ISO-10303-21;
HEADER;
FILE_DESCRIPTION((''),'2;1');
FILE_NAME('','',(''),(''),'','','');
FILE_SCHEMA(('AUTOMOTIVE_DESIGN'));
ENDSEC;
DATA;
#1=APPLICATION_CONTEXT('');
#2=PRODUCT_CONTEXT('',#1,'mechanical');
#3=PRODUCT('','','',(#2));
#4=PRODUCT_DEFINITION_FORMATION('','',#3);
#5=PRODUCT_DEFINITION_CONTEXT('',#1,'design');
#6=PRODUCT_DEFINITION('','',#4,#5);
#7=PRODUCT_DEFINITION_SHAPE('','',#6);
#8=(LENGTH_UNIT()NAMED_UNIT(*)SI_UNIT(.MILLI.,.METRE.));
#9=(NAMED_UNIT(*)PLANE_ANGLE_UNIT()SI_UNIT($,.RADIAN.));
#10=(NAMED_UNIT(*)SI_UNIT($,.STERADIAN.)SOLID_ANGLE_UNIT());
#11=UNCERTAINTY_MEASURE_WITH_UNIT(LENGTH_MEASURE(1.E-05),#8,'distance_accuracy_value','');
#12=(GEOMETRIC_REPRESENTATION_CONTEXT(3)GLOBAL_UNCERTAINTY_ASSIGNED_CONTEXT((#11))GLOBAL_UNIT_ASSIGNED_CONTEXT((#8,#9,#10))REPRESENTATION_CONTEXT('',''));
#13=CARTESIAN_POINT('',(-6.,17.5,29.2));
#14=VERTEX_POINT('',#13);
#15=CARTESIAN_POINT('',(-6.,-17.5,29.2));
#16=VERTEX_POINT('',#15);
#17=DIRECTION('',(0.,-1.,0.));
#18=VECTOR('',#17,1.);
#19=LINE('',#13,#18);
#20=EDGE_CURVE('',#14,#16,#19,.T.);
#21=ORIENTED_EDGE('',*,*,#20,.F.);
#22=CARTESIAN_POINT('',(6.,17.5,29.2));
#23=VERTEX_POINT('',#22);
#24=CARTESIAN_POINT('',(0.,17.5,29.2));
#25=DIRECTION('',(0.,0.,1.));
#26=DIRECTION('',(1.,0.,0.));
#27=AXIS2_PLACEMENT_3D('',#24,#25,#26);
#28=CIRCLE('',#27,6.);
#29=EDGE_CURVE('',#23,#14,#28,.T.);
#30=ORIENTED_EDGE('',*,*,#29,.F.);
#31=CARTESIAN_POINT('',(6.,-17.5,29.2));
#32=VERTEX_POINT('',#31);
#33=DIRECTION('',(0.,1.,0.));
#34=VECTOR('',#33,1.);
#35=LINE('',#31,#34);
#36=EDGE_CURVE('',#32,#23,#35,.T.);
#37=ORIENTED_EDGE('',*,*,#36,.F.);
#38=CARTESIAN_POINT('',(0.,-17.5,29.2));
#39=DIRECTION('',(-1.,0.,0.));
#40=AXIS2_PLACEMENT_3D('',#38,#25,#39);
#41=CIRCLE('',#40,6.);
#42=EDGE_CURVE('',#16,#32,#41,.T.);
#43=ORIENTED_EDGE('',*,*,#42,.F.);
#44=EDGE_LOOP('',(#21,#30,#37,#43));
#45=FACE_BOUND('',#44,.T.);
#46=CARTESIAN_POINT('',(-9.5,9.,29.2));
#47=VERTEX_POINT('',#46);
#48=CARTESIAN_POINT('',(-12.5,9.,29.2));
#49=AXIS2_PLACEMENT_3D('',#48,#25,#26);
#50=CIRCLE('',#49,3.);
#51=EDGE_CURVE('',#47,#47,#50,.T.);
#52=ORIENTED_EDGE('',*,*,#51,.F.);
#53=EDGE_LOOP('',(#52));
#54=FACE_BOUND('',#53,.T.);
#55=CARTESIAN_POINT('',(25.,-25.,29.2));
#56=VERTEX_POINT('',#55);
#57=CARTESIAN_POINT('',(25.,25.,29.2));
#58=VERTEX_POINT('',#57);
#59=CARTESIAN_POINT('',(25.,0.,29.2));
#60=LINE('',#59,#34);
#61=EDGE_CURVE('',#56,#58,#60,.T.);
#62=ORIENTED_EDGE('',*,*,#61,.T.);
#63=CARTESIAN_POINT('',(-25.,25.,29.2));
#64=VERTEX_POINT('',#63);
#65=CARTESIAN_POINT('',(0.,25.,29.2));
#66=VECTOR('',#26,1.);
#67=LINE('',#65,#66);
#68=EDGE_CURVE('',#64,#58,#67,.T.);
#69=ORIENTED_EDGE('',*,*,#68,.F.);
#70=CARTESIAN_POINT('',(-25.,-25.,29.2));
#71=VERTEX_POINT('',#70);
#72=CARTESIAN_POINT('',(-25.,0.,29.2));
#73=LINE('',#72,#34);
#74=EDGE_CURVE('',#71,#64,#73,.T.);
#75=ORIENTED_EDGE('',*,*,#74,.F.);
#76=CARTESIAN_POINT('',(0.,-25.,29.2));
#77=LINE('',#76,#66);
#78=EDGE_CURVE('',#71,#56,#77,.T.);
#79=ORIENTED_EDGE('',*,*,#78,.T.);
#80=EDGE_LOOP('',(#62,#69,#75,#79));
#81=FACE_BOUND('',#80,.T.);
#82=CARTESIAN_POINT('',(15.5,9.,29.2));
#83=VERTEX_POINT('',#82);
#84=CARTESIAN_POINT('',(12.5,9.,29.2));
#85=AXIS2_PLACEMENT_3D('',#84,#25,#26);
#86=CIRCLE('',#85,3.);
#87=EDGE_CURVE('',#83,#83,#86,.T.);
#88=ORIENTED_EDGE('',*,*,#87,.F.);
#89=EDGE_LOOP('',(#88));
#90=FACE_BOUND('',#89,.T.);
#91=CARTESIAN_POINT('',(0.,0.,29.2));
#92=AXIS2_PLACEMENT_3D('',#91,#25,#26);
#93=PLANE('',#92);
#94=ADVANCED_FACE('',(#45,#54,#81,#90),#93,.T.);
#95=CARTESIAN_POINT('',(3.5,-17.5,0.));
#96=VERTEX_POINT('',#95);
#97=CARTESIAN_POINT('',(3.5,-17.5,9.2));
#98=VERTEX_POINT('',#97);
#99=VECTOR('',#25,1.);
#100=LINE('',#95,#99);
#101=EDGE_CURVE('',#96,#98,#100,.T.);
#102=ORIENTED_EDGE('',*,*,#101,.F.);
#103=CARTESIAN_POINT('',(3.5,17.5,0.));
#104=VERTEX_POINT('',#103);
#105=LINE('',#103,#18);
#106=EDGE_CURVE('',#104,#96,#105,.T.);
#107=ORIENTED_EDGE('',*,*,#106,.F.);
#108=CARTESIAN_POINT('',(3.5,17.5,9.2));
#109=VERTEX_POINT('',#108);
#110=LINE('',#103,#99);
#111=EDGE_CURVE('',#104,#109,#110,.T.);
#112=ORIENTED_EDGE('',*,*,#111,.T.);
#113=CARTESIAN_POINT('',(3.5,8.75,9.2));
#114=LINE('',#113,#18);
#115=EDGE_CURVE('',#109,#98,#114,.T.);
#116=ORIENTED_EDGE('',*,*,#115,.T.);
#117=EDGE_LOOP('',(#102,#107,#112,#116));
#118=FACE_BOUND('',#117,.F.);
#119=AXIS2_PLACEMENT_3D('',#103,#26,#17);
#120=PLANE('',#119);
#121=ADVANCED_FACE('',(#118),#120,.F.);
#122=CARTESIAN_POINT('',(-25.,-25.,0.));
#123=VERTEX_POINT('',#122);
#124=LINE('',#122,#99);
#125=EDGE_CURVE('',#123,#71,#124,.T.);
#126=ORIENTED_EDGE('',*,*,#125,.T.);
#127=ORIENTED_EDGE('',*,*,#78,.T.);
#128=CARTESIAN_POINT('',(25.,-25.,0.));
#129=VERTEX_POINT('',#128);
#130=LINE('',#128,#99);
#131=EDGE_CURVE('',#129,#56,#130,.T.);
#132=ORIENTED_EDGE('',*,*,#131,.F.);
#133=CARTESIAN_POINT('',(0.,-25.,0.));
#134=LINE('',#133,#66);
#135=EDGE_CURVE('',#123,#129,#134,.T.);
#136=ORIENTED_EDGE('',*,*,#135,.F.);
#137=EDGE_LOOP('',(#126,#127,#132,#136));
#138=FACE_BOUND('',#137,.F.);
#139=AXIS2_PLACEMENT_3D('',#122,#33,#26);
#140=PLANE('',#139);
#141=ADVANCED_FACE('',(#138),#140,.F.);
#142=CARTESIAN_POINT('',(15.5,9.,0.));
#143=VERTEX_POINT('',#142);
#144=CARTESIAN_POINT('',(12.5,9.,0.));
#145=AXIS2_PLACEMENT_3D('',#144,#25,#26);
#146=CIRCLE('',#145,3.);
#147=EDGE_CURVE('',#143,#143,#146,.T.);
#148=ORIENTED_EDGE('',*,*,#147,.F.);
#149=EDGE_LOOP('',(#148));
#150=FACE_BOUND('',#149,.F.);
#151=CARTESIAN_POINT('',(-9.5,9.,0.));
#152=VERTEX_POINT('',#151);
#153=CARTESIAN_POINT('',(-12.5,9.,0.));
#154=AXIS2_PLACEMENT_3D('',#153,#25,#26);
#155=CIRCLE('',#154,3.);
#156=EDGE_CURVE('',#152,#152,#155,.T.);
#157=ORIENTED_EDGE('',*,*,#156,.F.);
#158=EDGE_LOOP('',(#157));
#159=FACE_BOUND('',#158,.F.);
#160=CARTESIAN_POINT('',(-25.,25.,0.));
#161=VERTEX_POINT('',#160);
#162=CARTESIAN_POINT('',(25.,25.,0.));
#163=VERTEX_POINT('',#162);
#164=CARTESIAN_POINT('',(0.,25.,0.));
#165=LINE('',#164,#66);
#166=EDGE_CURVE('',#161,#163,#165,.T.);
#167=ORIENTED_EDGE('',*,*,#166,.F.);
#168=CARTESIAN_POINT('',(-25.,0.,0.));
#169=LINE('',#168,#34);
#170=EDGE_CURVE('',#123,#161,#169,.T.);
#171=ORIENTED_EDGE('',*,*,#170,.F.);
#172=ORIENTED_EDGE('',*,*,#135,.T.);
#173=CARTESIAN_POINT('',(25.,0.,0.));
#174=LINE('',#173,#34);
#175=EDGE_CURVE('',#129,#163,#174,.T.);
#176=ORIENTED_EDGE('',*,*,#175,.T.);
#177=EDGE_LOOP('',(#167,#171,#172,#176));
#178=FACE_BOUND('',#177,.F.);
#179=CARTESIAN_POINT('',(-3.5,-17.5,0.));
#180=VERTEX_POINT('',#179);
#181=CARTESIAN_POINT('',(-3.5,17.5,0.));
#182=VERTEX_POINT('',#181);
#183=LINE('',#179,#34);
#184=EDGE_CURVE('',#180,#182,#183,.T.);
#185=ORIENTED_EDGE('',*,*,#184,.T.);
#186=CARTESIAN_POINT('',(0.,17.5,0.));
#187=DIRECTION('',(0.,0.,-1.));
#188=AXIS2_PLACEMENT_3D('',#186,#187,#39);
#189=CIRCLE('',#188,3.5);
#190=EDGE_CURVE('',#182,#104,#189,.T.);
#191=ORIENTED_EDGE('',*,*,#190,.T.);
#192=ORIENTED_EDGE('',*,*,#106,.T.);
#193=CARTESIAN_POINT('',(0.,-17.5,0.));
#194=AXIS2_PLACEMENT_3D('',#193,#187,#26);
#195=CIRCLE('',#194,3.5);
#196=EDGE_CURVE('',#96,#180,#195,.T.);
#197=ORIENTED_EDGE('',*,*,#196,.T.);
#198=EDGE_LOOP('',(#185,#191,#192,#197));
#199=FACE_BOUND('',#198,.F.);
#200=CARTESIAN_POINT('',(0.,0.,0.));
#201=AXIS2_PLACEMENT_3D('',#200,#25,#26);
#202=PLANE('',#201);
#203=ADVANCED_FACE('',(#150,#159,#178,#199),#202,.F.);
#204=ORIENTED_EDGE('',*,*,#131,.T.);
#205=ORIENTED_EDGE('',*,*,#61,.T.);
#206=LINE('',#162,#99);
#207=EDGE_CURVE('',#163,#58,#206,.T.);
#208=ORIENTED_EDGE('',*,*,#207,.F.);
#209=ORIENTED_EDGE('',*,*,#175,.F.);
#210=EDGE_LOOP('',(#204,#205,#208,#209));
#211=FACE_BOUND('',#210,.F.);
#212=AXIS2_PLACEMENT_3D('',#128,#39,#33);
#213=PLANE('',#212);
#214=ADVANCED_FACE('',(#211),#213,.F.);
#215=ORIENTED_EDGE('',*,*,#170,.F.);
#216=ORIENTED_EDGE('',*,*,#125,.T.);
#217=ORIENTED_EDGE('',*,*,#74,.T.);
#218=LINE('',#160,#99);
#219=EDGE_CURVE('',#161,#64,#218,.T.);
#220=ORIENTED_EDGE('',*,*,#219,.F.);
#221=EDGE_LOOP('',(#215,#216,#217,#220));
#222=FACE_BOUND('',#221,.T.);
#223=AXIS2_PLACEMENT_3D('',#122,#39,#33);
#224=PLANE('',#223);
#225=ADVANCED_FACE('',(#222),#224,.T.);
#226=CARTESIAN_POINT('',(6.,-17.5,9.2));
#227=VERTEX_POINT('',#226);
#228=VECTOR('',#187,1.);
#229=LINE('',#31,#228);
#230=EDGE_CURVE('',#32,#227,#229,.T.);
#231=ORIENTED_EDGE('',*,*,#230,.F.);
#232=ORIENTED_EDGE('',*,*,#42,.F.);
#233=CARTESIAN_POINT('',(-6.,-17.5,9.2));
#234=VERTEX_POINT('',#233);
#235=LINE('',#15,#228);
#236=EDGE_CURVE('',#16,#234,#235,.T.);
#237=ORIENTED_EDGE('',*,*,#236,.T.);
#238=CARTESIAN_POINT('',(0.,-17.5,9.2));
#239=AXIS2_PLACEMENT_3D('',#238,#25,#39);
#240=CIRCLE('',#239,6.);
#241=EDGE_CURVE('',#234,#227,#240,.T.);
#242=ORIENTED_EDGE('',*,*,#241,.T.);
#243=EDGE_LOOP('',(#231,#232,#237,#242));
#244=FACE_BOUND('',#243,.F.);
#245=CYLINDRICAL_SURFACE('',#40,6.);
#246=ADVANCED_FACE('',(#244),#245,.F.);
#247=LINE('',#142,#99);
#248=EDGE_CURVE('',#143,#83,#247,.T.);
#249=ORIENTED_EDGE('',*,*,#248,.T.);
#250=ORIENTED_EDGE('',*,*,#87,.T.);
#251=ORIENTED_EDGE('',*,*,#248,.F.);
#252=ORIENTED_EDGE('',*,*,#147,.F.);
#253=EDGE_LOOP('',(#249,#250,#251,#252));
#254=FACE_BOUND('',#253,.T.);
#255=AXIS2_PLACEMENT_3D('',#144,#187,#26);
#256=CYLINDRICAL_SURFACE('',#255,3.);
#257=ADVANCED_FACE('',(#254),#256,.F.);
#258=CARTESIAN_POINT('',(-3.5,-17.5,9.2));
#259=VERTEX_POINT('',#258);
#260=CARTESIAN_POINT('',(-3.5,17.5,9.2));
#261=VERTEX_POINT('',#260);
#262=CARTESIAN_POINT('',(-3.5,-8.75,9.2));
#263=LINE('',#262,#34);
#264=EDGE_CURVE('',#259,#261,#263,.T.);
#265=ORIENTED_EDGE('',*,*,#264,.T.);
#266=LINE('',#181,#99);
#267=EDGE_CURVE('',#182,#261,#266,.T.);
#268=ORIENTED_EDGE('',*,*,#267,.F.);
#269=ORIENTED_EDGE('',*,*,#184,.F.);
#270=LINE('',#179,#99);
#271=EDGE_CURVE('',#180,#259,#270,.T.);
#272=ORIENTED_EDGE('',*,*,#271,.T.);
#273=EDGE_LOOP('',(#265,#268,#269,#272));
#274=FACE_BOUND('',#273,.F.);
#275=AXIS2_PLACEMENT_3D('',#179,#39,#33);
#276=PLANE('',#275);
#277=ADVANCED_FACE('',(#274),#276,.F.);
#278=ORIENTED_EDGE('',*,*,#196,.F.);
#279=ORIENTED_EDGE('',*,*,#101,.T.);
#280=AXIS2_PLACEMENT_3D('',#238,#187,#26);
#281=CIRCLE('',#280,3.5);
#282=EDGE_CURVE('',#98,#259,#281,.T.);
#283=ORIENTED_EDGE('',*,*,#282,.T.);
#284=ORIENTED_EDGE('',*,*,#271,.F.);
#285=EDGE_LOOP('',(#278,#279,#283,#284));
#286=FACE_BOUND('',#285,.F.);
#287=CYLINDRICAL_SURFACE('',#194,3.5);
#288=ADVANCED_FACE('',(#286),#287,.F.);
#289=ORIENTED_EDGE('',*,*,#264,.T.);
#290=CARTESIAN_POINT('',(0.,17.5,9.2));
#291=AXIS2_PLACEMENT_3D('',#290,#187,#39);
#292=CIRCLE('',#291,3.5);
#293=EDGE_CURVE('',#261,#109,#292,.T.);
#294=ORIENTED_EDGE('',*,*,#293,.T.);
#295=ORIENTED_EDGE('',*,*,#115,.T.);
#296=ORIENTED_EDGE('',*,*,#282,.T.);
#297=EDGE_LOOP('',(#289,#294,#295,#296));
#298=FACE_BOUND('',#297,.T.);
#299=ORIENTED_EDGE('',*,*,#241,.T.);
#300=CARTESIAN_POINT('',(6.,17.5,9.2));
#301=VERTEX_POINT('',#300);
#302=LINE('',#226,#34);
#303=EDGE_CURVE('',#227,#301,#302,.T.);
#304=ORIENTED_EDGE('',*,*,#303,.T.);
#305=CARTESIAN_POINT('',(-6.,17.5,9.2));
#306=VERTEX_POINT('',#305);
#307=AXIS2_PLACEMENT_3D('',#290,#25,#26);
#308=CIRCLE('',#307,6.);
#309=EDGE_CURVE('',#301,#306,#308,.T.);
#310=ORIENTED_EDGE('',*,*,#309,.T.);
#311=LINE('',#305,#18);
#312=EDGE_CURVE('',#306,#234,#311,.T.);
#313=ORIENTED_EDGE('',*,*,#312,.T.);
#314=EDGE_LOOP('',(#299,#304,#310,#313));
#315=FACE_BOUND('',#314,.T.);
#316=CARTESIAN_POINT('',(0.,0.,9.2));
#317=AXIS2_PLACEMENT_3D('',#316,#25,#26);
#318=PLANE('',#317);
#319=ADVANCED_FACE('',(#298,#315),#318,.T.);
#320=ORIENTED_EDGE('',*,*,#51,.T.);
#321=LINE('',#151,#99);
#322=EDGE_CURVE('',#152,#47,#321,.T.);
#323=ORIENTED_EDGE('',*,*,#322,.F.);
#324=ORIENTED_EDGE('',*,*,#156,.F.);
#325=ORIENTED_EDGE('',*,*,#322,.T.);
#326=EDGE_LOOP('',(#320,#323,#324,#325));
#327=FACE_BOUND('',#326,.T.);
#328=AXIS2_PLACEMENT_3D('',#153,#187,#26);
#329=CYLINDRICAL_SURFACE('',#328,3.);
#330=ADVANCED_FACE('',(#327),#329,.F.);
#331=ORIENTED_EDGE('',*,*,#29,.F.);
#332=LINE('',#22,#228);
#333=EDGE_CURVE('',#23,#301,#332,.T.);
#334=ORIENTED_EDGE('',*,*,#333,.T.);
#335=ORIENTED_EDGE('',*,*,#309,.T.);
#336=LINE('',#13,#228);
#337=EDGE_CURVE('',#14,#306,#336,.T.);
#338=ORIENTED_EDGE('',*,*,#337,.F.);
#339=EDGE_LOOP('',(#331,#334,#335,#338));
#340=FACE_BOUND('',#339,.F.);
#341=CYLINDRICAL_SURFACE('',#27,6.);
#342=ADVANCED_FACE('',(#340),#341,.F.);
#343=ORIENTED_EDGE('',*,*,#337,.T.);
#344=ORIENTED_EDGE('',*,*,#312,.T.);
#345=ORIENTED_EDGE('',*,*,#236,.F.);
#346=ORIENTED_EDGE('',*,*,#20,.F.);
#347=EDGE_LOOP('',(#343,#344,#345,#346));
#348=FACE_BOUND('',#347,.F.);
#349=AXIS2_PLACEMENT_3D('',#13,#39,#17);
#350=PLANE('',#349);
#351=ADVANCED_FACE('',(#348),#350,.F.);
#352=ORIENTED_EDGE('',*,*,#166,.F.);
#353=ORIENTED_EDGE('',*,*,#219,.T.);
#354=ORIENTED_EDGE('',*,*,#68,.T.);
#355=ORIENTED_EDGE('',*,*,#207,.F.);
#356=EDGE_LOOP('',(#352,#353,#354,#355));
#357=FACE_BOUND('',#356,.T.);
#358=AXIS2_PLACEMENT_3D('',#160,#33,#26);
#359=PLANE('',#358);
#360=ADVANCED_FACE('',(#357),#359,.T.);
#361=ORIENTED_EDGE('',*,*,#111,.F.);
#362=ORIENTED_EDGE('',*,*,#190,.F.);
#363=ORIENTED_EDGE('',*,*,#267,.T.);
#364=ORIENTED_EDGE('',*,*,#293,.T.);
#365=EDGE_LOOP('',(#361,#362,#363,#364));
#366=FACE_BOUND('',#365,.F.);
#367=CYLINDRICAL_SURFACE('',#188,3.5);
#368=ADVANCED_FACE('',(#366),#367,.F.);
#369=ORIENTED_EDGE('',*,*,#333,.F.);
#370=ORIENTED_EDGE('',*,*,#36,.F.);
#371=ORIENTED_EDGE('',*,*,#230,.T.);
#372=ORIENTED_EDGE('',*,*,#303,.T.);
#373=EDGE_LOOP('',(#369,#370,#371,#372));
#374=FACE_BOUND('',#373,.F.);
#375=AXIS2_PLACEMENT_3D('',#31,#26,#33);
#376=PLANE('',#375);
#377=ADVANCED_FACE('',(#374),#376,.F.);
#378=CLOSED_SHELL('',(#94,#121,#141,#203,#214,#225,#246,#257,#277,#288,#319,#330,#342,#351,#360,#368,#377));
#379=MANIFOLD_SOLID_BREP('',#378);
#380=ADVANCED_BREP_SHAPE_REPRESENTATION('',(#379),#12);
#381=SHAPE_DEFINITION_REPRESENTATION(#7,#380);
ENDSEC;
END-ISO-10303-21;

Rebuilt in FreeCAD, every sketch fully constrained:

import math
import FreeCAD as App
import Part
import Sketcher
from FreeCAD import Vector
Q = App.Units.Quantity


def add_polygon(sketch, points):
    """Adds a closed chain of lines whose ends are joined by coincident constraints."""
    first, n = sketch.GeometryCount, len(points)
    for a, b in zip(points, points[1:] + points[:1]):
        sketch.addGeometry(Part.LineSegment(App.Vector(*a, 0), App.Vector(*b, 0)), False)
    for i in range(n):
        sketch.addConstraint(Sketcher.Constraint("Coincident", first + i, 2, first + (i + 1) % n, 1))

doc = App.newDocument("Part")
body = doc.addObject("PartDesign::Body", "Body")

sketch1 = body.newObject("Sketcher::SketchObject", "Sketch")
sketch1.AttachmentSupport = (doc.getObject("XY_Plane"), [""])
sketch1.MapMode = "FlatFace"
add_polygon(sketch1, [(-25, 25), (-25, -25), (25, -25), (25, 25)])
sketch1.addGeometry(Part.Circle(Vector(-12.5, 9, 0), Vector(0, 0, 1), 3), False)
sketch1.addGeometry(Part.LineSegment(Vector(-3.5, -17.5, 0), Vector(-3.5, 17.5, 0)), False)
sketch1.addGeometry(Part.ArcOfCircle(Part.Circle(Vector(0, 17.5, 0), Vector(0, 0, 1), 3.5), math.radians(0), math.radians(180)), False)
sketch1.addGeometry(Part.LineSegment(Vector(3.5, 17.5, 0), Vector(3.5, -17.5, 0)), False)
sketch1.addGeometry(Part.ArcOfCircle(Part.Circle(Vector(0, -17.5, 0), Vector(0, 0, 1), 3.5), math.radians(180), math.radians(360)), False)
sketch1.addGeometry(Part.Circle(Vector(12.5, 9, 0), Vector(0, 0, 1), 3), False)
sketch1.addConstraint([
    Sketcher.Constraint("Tangent", 5, 2, 6, 2),
    Sketcher.Constraint("Tangent", 6, 1, 7, 1),
    Sketcher.Constraint("Tangent", 7, 2, 8, 2),
    Sketcher.Constraint("Tangent", 8, 1, 5, 1),
    Sketcher.Constraint("Vertical", 0),
    Sketcher.Constraint("Horizontal", 1),
    Sketcher.Constraint("Vertical", 2),
    Sketcher.Constraint("Horizontal", 3),
    Sketcher.Constraint("Vertical", 5),
    Sketcher.Constraint("Vertical", 7),
    Sketcher.Constraint("Equal", 4, 9),
    Sketcher.Constraint("Symmetric", 6, 3, 8, 3, -1, 1),
    Sketcher.Constraint("Symmetric", 0, 2, 2, 2, -1, 1),
    Sketcher.Constraint("Symmetric", 4, 3, 9, 3, -2),
    Sketcher.Constraint("Equal", 3, 0),
    Sketcher.Constraint("Diameter", 4, Q("6 mm")),
    Sketcher.Constraint("Radius", 6, Q("3.5 mm")),
    Sketcher.Constraint("DistanceX", 1, 1, 1, 2, Q("50 mm")),
    Sketcher.Constraint("DistanceY", 5, 1, 5, 2, Q("35 mm")),
    Sketcher.Constraint("DistanceY", -1, 1, 4, 3, Q("9 mm")),
    Sketcher.Constraint("DistanceX", 4, 3, 9, 3, Q("25 mm")),
])
pad1 = body.newObject("PartDesign::Pad", "Pad")
pad1.Profile = sketch1
pad1.Length = 29.2

sketch2 = body.newObject("Sketcher::SketchObject", "Sketch001")
sketch2.AttachmentSupport = (doc.getObject("XY_Plane"), [""])
sketch2.MapMode = "FlatFace"
sketch2.AttachmentOffset = App.Placement(Vector(0, 0, 29.2), App.Rotation())
sketch2.addGeometry([
    Part.LineSegment(Vector(6, -18, 0), Vector(6, 18, 0)),
    Part.ArcOfCircle(Part.Circle(Vector(0, 18, 0), Vector(0, 0, 1), 6), math.radians(0), math.radians(180)),
    Part.LineSegment(Vector(-6, 18, 0), Vector(-6, -18, 0)),
    Part.ArcOfCircle(Part.Circle(Vector(0, -18, 0), Vector(0, 0, 1), 6), math.radians(180), math.radians(360)),
], False)
sketch2.addConstraint([
    Sketcher.Constraint("Tangent", 0, 2, 1, 1),
    Sketcher.Constraint("Tangent", 1, 2, 2, 1),
    Sketcher.Constraint("Tangent", 2, 2, 3, 1),
    Sketcher.Constraint("Tangent", 3, 2, 0, 1),
    Sketcher.Constraint("Vertical", 0),
    Sketcher.Constraint("Vertical", 2),
    Sketcher.Constraint("Symmetric", 1, 3, 3, 3, -1, 1),
    Sketcher.Constraint("Radius", 1, Q("6 mm")),
    Sketcher.Constraint("DistanceY", 0, 1, 0, 2, Q("35 mm")),
])
pocket1 = body.newObject("PartDesign::Pocket", "Pocket")
pocket1.Profile = sketch2
pocket1.Length = 20

doc.recompute()
